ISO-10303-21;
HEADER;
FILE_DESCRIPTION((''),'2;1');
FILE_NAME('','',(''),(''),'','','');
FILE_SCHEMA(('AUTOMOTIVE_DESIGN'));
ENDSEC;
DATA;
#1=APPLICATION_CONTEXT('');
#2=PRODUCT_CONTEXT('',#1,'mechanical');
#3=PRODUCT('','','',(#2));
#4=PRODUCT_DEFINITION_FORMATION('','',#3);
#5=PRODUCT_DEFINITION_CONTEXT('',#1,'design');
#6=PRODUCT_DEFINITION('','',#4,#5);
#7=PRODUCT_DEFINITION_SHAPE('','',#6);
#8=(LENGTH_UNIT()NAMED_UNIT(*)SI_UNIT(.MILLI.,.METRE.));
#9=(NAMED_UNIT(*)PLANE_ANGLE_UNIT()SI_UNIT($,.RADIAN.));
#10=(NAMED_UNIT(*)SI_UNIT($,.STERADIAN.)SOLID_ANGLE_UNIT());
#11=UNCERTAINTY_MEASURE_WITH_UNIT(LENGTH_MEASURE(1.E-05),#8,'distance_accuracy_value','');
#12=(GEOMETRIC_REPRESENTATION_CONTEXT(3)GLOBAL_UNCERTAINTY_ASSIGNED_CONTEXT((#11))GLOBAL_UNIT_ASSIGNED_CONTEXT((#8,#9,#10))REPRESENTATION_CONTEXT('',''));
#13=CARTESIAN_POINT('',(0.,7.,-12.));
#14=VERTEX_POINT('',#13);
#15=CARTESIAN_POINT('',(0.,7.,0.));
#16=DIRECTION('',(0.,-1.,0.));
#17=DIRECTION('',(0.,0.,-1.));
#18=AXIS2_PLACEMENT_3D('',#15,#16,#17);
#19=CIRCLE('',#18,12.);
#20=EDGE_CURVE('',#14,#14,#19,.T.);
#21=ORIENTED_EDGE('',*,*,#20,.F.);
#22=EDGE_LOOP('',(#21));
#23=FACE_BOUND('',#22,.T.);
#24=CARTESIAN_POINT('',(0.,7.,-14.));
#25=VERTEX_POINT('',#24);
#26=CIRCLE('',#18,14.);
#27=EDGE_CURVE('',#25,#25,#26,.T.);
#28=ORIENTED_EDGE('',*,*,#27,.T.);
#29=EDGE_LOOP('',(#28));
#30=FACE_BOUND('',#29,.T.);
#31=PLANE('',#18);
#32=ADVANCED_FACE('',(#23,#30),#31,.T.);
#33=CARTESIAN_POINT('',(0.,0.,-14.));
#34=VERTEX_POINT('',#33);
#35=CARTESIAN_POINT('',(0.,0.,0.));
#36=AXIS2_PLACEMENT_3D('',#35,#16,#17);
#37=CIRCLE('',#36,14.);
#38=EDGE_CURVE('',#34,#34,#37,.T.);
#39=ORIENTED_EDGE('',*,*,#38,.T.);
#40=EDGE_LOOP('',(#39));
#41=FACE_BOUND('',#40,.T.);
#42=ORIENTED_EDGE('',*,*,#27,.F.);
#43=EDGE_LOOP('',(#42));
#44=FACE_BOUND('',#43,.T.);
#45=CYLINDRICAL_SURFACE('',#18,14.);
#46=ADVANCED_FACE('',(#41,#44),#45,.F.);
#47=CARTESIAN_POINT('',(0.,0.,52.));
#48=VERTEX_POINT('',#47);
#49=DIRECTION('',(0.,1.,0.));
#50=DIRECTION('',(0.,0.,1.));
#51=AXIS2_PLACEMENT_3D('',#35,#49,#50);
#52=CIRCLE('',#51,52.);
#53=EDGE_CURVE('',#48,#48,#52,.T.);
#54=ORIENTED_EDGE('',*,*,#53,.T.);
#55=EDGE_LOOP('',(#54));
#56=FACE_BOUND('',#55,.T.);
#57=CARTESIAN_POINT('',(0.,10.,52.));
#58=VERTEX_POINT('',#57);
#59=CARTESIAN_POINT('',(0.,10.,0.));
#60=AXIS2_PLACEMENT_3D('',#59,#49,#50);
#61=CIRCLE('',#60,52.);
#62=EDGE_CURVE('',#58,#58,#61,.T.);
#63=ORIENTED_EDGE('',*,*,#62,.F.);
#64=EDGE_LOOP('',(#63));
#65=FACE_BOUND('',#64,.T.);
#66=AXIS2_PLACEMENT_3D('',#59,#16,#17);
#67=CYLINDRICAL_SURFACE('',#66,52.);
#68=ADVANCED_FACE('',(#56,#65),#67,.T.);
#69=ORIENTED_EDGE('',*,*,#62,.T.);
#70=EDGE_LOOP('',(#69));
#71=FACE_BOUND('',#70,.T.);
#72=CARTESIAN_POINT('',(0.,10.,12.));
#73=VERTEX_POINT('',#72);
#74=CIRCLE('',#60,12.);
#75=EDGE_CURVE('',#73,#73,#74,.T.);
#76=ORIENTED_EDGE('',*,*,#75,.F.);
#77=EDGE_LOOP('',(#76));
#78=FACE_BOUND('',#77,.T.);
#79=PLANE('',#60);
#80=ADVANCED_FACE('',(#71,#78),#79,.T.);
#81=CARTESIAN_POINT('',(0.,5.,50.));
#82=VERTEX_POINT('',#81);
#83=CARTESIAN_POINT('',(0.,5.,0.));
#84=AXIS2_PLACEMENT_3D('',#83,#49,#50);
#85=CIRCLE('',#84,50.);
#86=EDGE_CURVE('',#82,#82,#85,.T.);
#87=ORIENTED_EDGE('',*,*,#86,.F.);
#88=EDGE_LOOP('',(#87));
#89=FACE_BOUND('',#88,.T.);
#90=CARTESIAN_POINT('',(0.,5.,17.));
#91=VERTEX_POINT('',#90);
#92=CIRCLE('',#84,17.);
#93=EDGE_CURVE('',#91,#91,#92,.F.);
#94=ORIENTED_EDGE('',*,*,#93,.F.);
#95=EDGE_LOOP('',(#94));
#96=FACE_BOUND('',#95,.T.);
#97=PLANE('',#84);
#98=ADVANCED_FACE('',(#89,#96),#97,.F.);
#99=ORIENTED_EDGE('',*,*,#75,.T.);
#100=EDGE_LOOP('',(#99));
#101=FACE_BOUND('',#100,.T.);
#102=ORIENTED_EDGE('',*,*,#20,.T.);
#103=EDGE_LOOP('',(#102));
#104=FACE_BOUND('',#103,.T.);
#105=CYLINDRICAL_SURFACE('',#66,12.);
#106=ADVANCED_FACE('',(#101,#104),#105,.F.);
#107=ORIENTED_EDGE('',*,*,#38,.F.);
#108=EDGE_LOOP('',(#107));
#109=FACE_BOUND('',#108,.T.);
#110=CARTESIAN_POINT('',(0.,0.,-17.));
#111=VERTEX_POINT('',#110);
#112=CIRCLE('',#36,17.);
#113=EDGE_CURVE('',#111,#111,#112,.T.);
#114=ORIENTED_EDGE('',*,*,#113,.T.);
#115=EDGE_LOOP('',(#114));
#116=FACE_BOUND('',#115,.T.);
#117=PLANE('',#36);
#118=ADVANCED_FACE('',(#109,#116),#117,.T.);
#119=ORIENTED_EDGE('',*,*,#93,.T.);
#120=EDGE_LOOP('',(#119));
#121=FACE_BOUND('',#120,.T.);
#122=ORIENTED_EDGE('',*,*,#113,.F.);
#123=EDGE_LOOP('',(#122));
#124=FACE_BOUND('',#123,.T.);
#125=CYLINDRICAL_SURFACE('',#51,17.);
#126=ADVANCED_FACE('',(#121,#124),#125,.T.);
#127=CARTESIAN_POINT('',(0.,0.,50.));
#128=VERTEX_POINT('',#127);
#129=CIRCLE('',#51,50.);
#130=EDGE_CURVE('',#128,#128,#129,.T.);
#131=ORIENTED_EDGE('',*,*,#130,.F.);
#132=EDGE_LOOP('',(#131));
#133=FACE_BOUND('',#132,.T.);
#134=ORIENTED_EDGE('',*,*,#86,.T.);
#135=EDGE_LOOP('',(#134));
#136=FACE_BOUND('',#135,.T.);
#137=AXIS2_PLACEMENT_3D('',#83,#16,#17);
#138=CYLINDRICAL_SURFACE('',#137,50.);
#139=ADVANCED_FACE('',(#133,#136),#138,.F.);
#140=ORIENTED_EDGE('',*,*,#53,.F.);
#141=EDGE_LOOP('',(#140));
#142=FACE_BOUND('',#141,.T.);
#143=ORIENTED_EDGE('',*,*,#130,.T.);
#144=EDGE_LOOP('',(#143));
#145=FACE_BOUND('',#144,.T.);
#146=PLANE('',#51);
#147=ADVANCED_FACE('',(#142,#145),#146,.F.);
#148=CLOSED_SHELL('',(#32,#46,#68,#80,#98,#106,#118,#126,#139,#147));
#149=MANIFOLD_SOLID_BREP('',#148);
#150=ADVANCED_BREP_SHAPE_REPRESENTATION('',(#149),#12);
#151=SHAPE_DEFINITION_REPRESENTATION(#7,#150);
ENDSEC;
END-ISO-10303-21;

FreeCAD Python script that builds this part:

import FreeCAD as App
import Part
import Sketcher

V = App.Vector

doc = App.newDocument("Part")
params = doc.addObject("Spreadsheet::Sheet", "Params")
for row, (alias, value) in enumerate([
    ("sketch1_diameter", "104 mm"),
    ("pad1_length", "10 mm"),
    ("sketch2_diameter", "100 mm"),
    ("pocket1_length", "5 mm"),
    ("sketch3_diameter", "24 mm"),
    ("pocket2_length", "10 mm"),
    ("sketch4_diameter", "34 mm"),
    ("pad2_length", "5 mm"),
    ("sketch5_diameter", "28 mm"),
    ("pocket3_length", "7 mm"),
], start=1):
    params.set(f"A{row}", alias)
    params.set(f"B{row}", "=" + value)
    params.setAlias(f"B{row}", alias)

body = doc.addObject("PartDesign::Body", "Body")

# Sketch on XZ plane
sketch1 = body.newObject("Sketcher::SketchObject", "Sketch")
sketch1.AttachmentSupport = (doc.getObject("XZ_Plane"), [""])
sketch1.MapMode = "FlatFace"
sketch1.addGeometry(Part.Circle(V(0, 0, 0), V(0, 0, 1), 52), False)
sketch1.addConstraint(Sketcher.Constraint("Coincident", 0, 3, -1, 1))
sketch1.addConstraint(Sketcher.Constraint("Diameter", 0, 104.0))
sketch1.setExpression("Constraints[1]", "Params.sketch1_diameter")
pad1 = body.newObject("PartDesign::Pad", "Pad")
pad1.Profile = sketch1
pad1.setExpression("Length", "Params.pad1_length")
pad1.Reversed = True

# Sketch on XZ plane
sketch2 = body.newObject("Sketcher::SketchObject", "Sketch001")
sketch2.AttachmentSupport = (doc.getObject("XZ_Plane"), [""])
sketch2.MapMode = "FlatFace"
sketch2.addGeometry(Part.Circle(V(0, 0, 0), V(0, 0, 1), 50), False)
sketch2.addConstraint(Sketcher.Constraint("Coincident", 0, 3, -1, 1))
sketch2.addConstraint(Sketcher.Constraint("Diameter", 0, 100.0))
sketch2.setExpression("Constraints[1]", "Params.sketch2_diameter")
pocket1 = body.newObject("PartDesign::Pocket", "Pocket")
pocket1.Profile = sketch2
pocket1.setExpression("Length", "Params.pocket1_length")

# Sketch on XZ plane
sketch3 = body.newObject("Sketcher::SketchObject", "Sketch002")
sketch3.AttachmentSupport = (doc.getObject("XZ_Plane"), [""])
sketch3.MapMode = "FlatFace"
sketch3.addGeometry(Part.Circle(V(0, 0, 0), V(0, 0, 1), 12), False)
sketch3.addConstraint(Sketcher.Constraint("Coincident", 0, 3, -1, 1))
sketch3.addConstraint(Sketcher.Constraint("Diameter", 0, 24.0))
sketch3.setExpression("Constraints[1]", "Params.sketch3_diameter")
pocket2 = body.newObject("PartDesign::Pocket", "Pocket001")
pocket2.Profile = sketch3
pocket2.setExpression("Length", "Params.pocket2_length")

# Sketch on XZ plane
sketch4 = body.newObject("Sketcher::SketchObject", "Sketch003")
sketch4.AttachmentSupport = (doc.getObject("XZ_Plane"), [""])
sketch4.MapMode = "FlatFace"
sketch4.AttachmentOffset = App.Placement(V(0, 0, -5), App.Rotation())
sketch4.addGeometry(Part.Circle(V(0, 0, 0), V(0, 0, 1), 17), False)
sketch4.addConstraint(Sketcher.Constraint("Coincident", 0, 3, -1, 1))
sketch4.addConstraint(Sketcher.Constraint("Diameter", 0, 34.0))
sketch4.setExpression("Constraints[1]", "Params.sketch4_diameter")
pad2 = body.newObject("PartDesign::Pad", "Pad001")
pad2.Profile = sketch4
pad2.setExpression("Length", "Params.pad2_length")

# Sketch on XZ plane
sketch5 = body.newObject("Sketcher::SketchObject", "Sketch004")
sketch5.AttachmentSupport = (doc.getObject("XZ_Plane"), [""])
sketch5.MapMode = "FlatFace"
sketch5.addGeometry(Part.Circle(V(0, 0, 0), V(0, 0, 1), 14), False)
sketch5.addConstraint(Sketcher.Constraint("Coincident", 0, 3, -1, 1))
sketch5.addConstraint(Sketcher.Constraint("Diameter", 0, 28.0))
sketch5.setExpression("Constraints[1]", "Params.sketch5_diameter")
pocket3 = body.newObject("PartDesign::Pocket", "Pocket002")
pocket3.Profile = sketch5
pocket3.setExpression("Length", "Params.pocket3_length")

doc.recompute()
